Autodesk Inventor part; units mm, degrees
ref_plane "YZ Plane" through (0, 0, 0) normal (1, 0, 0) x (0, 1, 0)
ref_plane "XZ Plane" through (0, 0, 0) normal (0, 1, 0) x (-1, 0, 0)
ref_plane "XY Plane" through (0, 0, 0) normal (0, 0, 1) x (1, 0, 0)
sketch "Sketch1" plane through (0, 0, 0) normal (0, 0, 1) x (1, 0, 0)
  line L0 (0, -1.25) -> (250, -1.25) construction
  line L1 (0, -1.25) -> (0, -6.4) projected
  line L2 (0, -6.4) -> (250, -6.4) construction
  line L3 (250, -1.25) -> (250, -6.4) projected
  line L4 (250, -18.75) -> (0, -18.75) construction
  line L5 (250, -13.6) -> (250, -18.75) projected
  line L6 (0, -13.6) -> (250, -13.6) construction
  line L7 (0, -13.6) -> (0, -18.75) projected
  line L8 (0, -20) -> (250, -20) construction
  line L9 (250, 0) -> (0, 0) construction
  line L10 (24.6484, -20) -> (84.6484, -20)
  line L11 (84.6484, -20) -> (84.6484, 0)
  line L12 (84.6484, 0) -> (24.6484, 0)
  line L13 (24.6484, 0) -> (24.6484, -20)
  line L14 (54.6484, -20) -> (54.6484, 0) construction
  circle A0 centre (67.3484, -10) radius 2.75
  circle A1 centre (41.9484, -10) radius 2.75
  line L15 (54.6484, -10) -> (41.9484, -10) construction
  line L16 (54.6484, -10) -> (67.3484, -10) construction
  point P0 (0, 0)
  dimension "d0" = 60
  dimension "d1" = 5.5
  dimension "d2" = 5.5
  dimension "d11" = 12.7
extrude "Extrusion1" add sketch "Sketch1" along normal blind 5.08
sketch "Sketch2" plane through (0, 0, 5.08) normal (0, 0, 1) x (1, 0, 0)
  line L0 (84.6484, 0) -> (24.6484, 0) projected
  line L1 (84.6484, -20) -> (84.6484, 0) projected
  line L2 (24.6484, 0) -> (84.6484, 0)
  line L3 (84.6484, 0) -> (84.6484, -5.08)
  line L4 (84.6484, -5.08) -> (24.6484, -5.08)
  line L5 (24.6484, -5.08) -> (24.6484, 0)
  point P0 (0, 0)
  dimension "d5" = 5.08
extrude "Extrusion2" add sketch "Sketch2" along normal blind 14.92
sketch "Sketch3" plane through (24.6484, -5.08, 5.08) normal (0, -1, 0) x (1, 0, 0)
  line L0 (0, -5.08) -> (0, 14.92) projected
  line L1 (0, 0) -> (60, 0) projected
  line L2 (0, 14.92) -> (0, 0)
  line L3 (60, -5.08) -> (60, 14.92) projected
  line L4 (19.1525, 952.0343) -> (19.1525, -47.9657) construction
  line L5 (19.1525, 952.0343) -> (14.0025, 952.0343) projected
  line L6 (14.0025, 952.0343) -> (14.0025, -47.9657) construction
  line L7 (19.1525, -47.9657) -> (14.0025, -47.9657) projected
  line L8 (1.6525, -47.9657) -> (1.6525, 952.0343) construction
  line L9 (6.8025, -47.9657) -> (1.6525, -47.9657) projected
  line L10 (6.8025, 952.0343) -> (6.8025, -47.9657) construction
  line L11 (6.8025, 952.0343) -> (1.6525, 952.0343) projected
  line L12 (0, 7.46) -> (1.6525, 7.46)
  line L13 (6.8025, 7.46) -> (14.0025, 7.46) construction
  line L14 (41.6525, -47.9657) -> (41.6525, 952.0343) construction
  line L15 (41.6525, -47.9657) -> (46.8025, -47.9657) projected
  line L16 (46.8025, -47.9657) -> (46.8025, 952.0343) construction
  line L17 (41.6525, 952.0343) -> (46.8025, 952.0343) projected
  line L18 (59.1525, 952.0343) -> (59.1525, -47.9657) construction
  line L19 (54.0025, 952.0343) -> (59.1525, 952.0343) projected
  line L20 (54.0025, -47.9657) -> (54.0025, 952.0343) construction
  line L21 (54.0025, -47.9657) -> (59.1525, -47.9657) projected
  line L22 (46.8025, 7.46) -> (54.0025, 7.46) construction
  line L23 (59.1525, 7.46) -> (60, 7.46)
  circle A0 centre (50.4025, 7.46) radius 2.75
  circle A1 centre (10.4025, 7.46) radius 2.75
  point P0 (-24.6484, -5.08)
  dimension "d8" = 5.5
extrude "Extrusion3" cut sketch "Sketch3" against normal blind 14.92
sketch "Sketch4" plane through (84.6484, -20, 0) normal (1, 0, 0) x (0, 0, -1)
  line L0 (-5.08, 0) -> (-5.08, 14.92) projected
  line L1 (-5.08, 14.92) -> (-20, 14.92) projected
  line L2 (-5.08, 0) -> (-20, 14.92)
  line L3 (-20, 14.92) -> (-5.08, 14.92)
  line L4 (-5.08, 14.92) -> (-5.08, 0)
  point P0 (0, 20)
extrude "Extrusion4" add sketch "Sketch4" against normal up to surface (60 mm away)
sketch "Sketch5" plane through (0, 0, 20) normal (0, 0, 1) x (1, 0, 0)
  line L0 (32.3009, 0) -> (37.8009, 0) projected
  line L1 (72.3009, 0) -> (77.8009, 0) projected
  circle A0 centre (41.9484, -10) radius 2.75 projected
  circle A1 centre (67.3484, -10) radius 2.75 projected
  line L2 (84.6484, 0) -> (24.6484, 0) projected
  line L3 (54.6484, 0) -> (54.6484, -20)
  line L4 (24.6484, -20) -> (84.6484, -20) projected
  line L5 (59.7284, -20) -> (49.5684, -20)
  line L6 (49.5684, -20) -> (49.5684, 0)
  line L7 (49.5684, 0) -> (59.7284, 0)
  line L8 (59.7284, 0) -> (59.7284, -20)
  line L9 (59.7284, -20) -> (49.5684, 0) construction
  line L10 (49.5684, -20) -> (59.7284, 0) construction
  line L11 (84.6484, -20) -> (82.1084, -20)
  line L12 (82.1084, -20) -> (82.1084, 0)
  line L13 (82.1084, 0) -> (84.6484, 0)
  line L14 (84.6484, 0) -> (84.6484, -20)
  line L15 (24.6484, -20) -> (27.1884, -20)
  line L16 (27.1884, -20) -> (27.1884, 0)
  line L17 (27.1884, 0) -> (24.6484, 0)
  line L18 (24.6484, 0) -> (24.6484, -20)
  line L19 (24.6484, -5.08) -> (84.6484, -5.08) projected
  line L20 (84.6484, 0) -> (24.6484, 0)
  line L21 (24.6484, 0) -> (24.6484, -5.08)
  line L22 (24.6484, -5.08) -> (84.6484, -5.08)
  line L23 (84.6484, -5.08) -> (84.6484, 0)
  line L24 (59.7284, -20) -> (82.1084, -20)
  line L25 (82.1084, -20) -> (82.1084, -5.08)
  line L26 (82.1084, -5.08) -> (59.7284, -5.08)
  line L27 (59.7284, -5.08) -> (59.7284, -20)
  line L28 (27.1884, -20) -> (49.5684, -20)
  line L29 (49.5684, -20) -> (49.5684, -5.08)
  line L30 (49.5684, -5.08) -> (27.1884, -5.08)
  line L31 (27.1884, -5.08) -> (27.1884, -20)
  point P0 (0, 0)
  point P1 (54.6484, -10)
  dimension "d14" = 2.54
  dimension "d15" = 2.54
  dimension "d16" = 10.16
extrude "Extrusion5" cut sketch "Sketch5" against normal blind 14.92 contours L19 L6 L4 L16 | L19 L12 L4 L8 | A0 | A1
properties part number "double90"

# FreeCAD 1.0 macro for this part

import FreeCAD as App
import Part
import Sketcher

doc = App.newDocument("Part")
body = doc.addObject("PartDesign::Body", "Body")

sketch1 = body.newObject("Sketcher::SketchObject", "Sketch")
sketch1.AttachmentSupport = (doc.getObject("XY_Plane"), [""])
sketch1.MapMode = "FlatFace"
sketch1.addGeometry(Part.LineSegment(App.Vector(24.6, 0, 0), App.Vector(24.6, -20, 0)), False)
sketch1.addGeometry(Part.LineSegment(App.Vector(24.6, -20, 0), App.Vector(84.6, -20, 0)), False)
sketch1.addGeometry(Part.LineSegment(App.Vector(84.6, -20, 0), App.Vector(84.6, 0, 0)), False)
sketch1.addGeometry(Part.LineSegment(App.Vector(84.6, 0, 0), App.Vector(24.6, 0, 0)), False)
sketch1.addGeometry(Part.Circle(App.Vector(41.9, -10, 0), App.Vector(0, 0, 1), 2.8), False)
sketch1.addGeometry(Part.Circle(App.Vector(67.3, -10, 0), App.Vector(0, 0, 1), 2.8), False)
sketch1.addConstraint(Sketcher.Constraint("Coincident", 0, 2, 1, 1))
sketch1.addConstraint(Sketcher.Constraint("Coincident", 1, 2, 2, 1))
sketch1.addConstraint(Sketcher.Constraint("Coincident", 2, 2, 3, 1))
sketch1.addConstraint(Sketcher.Constraint("Coincident", 3, 2, 0, 1))
sketch1.addConstraint(Sketcher.Constraint("Vertical", 0))
sketch1.addConstraint(Sketcher.Constraint("Horizontal", 1))
sketch1.addConstraint(Sketcher.Constraint("Vertical", 2))
sketch1.addConstraint(Sketcher.Constraint("Horizontal", 3))
sketch1.addConstraint(Sketcher.Constraint("Equal", 4, 5))
sketch1.addConstraint(Sketcher.Constraint("PointOnObject", 2, 2, -1))
sketch1.addConstraint(Sketcher.Constraint("Horizontal", 4, 3, 5, 3))
sketch1.addConstraint(Sketcher.Constraint("Diameter", 4, 5.5))
sketch1.addConstraint(Sketcher.Constraint("DistanceX", 1, 1, 1, 2, 60.0))
sketch1.addConstraint(Sketcher.Constraint("DistanceY", 0, 2, 0, 1, 20.0))
sketch1.addConstraint(Sketcher.Constraint("DistanceY", 4, 3, -1, 1, 10.0))
sketch1.addConstraint(Sketcher.Constraint("DistanceX", 4, 3, 5, 3, 25.4))
sketch1.addConstraint(Sketcher.Constraint("DistanceX", 0, 2, 4, 3, 17.3))
sketch1.addConstraint(Sketcher.Constraint("DistanceX", -1, 1, 4, 3, 41.9484))
pad1 = body.newObject("PartDesign::Pad", "Pad")
pad1.Profile = sketch1
pad1.Length = 5.08

sketch2 = body.newObject("Sketcher::SketchObject", "Sketch001")
sketch2.AttachmentSupport = (doc.getObject("XY_Plane"), [""])
sketch2.MapMode = "FlatFace"
sketch2.AttachmentOffset = App.Placement(App.Vector(0, 0, 5.08), App.Rotation())
sketch2.addGeometry(Part.LineSegment(App.Vector(85, -5, 0), App.Vector(85, 0, 0)), False)
sketch2.addGeometry(Part.LineSegment(App.Vector(85, 0, 0), App.Vector(25, 0, 0)), False)
sketch2.addGeometry(Part.LineSegment(App.Vector(25, 0, 0), App.Vector(25, -5, 0)), False)
sketch2.addGeometry(Part.LineSegment(App.Vector(25, -5, 0), App.Vector(85, -5, 0)), False)
sketch2.addConstraint(Sketcher.Constraint("Coincident", 0, 2, 1, 1))
sketch2.addConstraint(Sketcher.Constraint("Coincident", 1, 2, 2, 1))
sketch2.addConstraint(Sketcher.Constraint("Coincident", 2, 2, 3, 1))
sketch2.addConstraint(Sketcher.Constraint("Coincident", 3, 2, 0, 1))
sketch2.addConstraint(Sketcher.Constraint("Vertical", 0))
sketch2.addConstraint(Sketcher.Constraint("Horizontal", 1))
sketch2.addConstraint(Sketcher.Constraint("Vertical", 2))
sketch2.addConstraint(Sketcher.Constraint("Horizontal", 3))
sketch2.addConstraint(Sketcher.Constraint("PointOnObject", 0, 2, -1))
sketch2.addConstraint(Sketcher.Constraint("DistanceY", 0, 1, 0, 2, 5.08))
sketch2.addConstraint(Sketcher.Constraint("DistanceX", 1, 2, 1, 1, 60.0))
sketch2.addConstraint(Sketcher.Constraint("DistanceX", -1, 1, 0, 2, 84.6484))
pad2 = body.newObject("PartDesign::Pad", "Pad001")
pad2.Profile = sketch2
pad2.Length = 14.92

sketch3 = body.newObject("Sketcher::SketchObject", "Sketch002")
sketch3.AttachmentSupport = (doc.getObject("XZ_Plane"), [""])
sketch3.MapMode = "FlatFace"
sketch3.AttachmentOffset = App.Placement(App.Vector(0, 0, 5.08), App.Rotation())
sketch3.addGeometry(Part.Circle(App.Vector(75.1, 12.5, 0), App.Vector(0, 0, 1), 2.8), False)
sketch3.addGeometry(Part.Circle(App.Vector(35.1, 12.5, 0), App.Vector(0, 0, 1), 2.8), False)
sketch3.addConstraint(Sketcher.Constraint("Equal", 0, 1))
sketch3.addConstraint(Sketcher.Constraint("Horizontal", 0, 3, 1, 3))
sketch3.addConstraint(Sketcher.Constraint("Diameter", 0, 5.5))
sketch3.addConstraint(Sketcher.Constraint("DistanceX", 1, 3, 0, 3, 40.0))
sketch3.addConstraint(Sketcher.Constraint("DistanceY", -1, 1, 0, 3, 12.54))
sketch3.addConstraint(Sketcher.Constraint("DistanceX", -1, 1, 0, 3, 75.051))
pocket1 = body.newObject("PartDesign::Pocket", "Pocket")
pocket1.Profile = sketch3
pocket1.Length = 14.92

sketch4 = body.newObject("Sketcher::SketchObject", "Sketch003")
sketch4.AttachmentSupport = (doc.getObject("YZ_Plane"), [""])
sketch4.MapMode = "FlatFace"
sketch4.AttachmentOffset = App.Placement(App.Vector(0, 0, 84.6484), App.Rotation())
sketch4.addGeometry(Part.LineSegment(App.Vector(-5, 20, 0), App.Vector(-20, 5, 0)), False)
sketch4.addGeometry(Part.LineSegment(App.Vector(-20, 5, 0), App.Vector(-5, 5, 0)), False)
sketch4.addGeometry(Part.LineSegment(App.Vector(-5, 5, 0), App.Vector(-5, 20, 0)), False)
sketch4.addConstraint(Sketcher.Constraint("Coincident", 0, 2, 1, 1))
sketch4.addConstraint(Sketcher.Constraint("Coincident", 1, 2, 2, 1))
sketch4.addConstraint(Sketcher.Constraint("Coincident", 2, 2, 0, 1))
sketch4.addConstraint(Sketcher.Constraint("Horizontal", 1))
sketch4.addConstraint(Sketcher.Constraint("Vertical", 2))
sketch4.addConstraint(Sketcher.Constraint("Equal", 1, 2))
sketch4.addConstraint(Sketcher.Constraint("DistanceX", 0, 2, -1, 1, 20.0))
sketch4.addConstraint(Sketcher.Constraint("DistanceY", -1, 1, 2, 2, 20.0))
sketch4.addConstraint(Sketcher.Constraint("Distance", 0, 21.1))
pad3 = body.newObject("PartDesign::Pad", "Pad002")
pad3.Profile = sketch4
pad3.Length = 60
pad3.Reversed = True

sketch5 = body.newObject("Sketcher::SketchObject", "Sketch004")
sketch5.AttachmentSupport = (doc.getObject("XY_Plane"), [""])
sketch5.MapMode = "FlatFace"
sketch5.AttachmentOffset = App.Placement(App.Vector(0, 0, 20), App.Rotation())
sketch5.addGeometry(Part.LineSegment(App.Vector(50, -5, 0), App.Vector(27, -5, 0)), False)
sketch5.addGeometry(Part.LineSegment(App.Vector(27, -5, 0), App.Vector(27, -20, 0)), False)
sketch5.addGeometry(Part.LineSegment(App.Vector(27, -20, 0), App.Vector(50, -20, 0)), False)
sketch5.addGeometry(Part.LineSegment(App.Vector(50, -20, 0), App.Vector(50, -5, 0)), False)
sketch5.addGeometry(Part.LineSegment(App.Vector(82, -5, 0), App.Vector(60, -5, 0)), False)
sketch5.addGeometry(Part.LineSegment(App.Vector(60, -5, 0), App.Vector(60, -20, 0)), False)
sketch5.addGeometry(Part.LineSegment(App.Vector(60, -20, 0), App.Vector(82, -20, 0)), False)
sketch5.addGeometry(Part.LineSegment(App.Vector(82, -20, 0), App.Vector(82, -5, 0)), False)
sketch5.addConstraint(Sketcher.Constraint("Coincident", 0, 2, 1, 1))
sketch5.addConstraint(Sketcher.Constraint("Coincident", 1, 2, 2, 1))
sketch5.addConstraint(Sketcher.Constraint("Coincident", 2, 2, 3, 1))
sketch5.addConstraint(Sketcher.Constraint("Coincident", 3, 2, 0, 1))
sketch5.addConstraint(Sketcher.Constraint("Coincident", 4, 2, 5, 1))
sketch5.addConstraint(Sketcher.Constraint("Coincident", 5, 2, 6, 1))
sketch5.addConstraint(Sketcher.Constraint("Coincident", 6, 2, 7, 1))
sketch5.addConstraint(Sketcher.Constraint("Coincident", 7, 2, 4, 1))
sketch5.addConstraint(Sketcher.Constraint("Horizontal", 0))
sketch5.addConstraint(Sketcher.Constraint("Vertical", 1))
sketch5.addConstraint(Sketcher.Constraint("Horizontal", 2))
sketch5.addConstraint(Sketcher.Constraint("Vertical", 3))
sketch5.addConstraint(Sketcher.Constraint("Horizontal", 4))
sketch5.addConstraint(Sketcher.Constraint("Vertical", 5))
sketch5.addConstraint(Sketcher.Constraint("Horizontal", 6))
sketch5.addConstraint(Sketcher.Constraint("Vertical", 7))
sketch5.addConstraint(Sketcher.Constraint("Horizontal", 3, 2, 4, 2))
sketch5.addConstraint(Sketcher.Constraint("Horizontal", 2, 2, 5, 2))
sketch5.addConstraint(Sketcher.Constraint("Equal", 2, 4))
sketch5.addConstraint(Sketcher.Constraint("DistanceX", 3, 2, 4, 2, 10.16))
sketch5.addConstraint(Sketcher.Constraint("DistanceY", 1, 2, -1, 1, 20.0))
sketch5.addConstraint(Sketcher.Constraint("DistanceX", 0, 2, 0, 1, 22.38))
sketch5.addConstraint(Sketcher.Constraint("DistanceY", 1, 2, 1, 1, 14.92))
sketch5.addConstraint(Sketcher.Constraint("DistanceX", -1, 1, 0, 2, 27.1884))
pocket2 = body.newObject("PartDesign::Pocket", "Pocket001")
pocket2.Profile = sketch5
pocket2.Length = 14.92

doc.recompute()
